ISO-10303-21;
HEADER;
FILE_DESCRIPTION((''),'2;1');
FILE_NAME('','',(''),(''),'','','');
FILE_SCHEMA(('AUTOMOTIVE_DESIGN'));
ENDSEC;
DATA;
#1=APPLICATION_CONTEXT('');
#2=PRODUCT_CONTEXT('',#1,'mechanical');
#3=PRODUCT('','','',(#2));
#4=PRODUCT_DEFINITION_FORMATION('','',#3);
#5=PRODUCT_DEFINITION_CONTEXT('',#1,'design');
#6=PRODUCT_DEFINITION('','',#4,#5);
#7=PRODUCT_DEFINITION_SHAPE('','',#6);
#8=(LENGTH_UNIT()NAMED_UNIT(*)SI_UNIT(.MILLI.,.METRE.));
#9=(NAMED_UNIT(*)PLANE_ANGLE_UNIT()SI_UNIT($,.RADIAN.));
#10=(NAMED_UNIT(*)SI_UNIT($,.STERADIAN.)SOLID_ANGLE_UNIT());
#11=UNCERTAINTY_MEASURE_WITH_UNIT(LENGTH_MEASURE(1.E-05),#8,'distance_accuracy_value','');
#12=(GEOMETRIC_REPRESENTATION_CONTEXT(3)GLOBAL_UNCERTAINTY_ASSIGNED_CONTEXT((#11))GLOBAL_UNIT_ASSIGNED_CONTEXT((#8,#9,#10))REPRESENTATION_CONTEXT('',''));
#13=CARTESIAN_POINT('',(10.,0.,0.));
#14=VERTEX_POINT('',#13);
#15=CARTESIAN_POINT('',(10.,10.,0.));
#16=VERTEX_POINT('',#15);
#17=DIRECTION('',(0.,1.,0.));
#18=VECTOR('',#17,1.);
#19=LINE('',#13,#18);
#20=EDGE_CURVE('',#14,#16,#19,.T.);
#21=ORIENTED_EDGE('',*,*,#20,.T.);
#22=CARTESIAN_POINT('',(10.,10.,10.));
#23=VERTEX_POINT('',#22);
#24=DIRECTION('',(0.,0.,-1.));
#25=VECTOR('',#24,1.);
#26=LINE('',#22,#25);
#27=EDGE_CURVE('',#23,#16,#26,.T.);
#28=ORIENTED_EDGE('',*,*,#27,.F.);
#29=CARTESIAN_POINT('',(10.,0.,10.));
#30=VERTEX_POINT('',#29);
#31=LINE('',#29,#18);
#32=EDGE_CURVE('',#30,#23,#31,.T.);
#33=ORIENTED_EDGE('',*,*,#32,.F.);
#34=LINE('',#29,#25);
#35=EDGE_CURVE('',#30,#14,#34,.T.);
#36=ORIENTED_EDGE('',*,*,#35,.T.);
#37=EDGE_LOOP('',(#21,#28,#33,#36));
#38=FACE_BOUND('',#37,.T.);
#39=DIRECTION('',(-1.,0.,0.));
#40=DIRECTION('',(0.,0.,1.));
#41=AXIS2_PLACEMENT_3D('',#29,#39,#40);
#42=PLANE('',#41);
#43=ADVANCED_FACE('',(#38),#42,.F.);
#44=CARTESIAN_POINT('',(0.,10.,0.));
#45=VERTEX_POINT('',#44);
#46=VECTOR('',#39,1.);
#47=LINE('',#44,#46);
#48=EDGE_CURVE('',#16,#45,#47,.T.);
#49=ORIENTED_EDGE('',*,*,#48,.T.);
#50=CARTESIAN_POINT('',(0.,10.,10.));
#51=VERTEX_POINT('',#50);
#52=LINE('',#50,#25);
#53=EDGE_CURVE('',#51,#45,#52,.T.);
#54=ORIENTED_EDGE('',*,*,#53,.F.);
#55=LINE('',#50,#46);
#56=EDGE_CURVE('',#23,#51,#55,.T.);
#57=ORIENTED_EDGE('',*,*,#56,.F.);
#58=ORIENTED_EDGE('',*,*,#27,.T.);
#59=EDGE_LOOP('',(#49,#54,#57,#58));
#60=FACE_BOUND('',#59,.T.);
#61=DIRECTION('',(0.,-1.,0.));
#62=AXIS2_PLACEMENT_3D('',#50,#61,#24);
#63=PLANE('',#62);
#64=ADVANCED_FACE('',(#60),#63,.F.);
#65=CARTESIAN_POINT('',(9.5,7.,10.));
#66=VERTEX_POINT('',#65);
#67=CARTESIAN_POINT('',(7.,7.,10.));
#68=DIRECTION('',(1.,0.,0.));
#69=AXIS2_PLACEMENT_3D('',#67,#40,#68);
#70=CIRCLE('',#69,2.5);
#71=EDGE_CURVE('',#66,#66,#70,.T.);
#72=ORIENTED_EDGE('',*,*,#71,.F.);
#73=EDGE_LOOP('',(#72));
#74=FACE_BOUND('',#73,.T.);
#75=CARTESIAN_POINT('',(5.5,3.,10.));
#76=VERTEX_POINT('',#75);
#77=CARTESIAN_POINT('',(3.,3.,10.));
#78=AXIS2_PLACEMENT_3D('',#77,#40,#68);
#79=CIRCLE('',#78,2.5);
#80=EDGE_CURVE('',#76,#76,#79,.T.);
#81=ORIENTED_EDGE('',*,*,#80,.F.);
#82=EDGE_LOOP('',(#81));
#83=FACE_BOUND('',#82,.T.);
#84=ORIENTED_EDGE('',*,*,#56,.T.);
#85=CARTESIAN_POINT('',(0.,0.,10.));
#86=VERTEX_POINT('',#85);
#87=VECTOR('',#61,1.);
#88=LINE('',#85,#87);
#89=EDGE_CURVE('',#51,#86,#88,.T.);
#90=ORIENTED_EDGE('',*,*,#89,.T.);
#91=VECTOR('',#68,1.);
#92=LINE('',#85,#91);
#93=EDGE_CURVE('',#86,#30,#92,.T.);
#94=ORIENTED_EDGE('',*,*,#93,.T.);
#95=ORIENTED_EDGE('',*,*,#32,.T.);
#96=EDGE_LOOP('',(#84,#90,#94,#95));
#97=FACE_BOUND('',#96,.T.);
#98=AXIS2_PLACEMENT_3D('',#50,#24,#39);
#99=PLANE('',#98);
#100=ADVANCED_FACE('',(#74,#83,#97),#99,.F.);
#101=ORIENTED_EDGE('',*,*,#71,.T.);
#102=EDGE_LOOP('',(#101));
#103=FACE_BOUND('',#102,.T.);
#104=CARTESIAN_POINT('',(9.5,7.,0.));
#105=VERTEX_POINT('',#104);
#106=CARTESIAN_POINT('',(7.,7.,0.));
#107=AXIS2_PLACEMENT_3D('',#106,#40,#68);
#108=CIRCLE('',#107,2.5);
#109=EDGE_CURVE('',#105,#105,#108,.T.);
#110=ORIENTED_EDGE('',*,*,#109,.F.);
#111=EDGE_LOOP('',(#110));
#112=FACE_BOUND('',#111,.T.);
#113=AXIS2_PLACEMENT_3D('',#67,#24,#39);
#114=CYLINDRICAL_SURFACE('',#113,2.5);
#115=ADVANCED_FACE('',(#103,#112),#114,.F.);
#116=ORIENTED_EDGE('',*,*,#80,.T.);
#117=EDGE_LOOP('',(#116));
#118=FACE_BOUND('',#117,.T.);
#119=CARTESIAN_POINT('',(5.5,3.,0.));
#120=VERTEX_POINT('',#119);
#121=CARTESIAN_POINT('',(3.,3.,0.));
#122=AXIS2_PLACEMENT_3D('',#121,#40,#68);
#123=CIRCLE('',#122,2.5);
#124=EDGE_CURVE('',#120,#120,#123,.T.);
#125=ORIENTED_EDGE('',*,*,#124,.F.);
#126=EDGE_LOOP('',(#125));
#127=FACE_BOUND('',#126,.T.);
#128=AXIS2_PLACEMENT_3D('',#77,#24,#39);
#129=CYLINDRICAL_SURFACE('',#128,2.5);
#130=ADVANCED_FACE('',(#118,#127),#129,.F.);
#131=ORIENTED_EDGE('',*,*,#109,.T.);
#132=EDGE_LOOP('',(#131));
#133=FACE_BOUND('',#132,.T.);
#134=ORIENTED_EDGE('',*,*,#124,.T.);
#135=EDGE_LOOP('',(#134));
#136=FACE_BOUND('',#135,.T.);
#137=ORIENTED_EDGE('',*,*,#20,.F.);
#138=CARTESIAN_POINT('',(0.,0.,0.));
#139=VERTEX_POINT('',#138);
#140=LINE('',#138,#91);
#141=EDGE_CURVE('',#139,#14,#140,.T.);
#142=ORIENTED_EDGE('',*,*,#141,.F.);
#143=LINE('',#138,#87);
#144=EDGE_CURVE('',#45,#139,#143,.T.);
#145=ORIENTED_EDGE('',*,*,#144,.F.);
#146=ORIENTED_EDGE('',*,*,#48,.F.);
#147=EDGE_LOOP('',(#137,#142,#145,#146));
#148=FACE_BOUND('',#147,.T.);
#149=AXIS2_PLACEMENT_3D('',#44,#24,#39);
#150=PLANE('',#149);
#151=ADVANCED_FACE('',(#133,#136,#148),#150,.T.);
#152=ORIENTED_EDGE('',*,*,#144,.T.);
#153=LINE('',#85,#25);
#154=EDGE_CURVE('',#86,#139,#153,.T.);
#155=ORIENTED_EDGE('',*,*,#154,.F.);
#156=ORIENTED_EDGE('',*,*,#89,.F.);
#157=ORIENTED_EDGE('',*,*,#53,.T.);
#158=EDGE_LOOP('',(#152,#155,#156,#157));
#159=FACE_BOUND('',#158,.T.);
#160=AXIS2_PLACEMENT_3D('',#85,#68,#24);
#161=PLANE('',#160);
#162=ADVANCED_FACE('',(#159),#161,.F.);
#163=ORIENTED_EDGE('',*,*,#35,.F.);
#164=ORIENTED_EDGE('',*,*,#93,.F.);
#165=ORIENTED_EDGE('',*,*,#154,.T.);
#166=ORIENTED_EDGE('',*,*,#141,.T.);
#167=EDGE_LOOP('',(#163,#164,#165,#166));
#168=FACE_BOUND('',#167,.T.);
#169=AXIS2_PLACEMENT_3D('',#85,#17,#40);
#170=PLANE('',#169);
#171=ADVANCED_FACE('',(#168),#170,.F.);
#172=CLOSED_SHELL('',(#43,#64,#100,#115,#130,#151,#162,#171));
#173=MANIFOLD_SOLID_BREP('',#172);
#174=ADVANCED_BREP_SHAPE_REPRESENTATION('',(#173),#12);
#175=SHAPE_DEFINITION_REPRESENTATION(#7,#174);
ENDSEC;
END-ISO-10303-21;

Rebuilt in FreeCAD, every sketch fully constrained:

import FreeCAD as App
import Part
import Sketcher
from FreeCAD import Vector


def add_polygon(sketch, points):
    """Adds a closed chain of lines whose ends are joined by coincident constraints."""
    first, n = sketch.GeometryCount, len(points)
    for a, b in zip(points, points[1:] + points[:1]):
        sketch.addGeometry(Part.LineSegment(App.Vector(*a, 0), App.Vector(*b, 0)), False)
    for i in range(n):
        sketch.addConstraint(Sketcher.Constraint("Coincident", first + i, 2, first + (i + 1) % n, 1))

doc = App.newDocument("Part")
body = doc.addObject("PartDesign::Body", "Body")

# Sketch on XY plane
sketch1 = doc.addObject("Sketcher::SketchObject", "Sketch")
body.addObject(sketch1)
sketch1.AttachmentSupport = (doc.XY_Plane, [""])
sketch1.MapMode = "FlatFace"
add_polygon(sketch1, [(0, 10), (0, 0), (10, 0), (10, 10)])  # lines 0-3
sketch1.addConstraint(Sketcher.Constraint("Vertical", 0))
sketch1.addConstraint(Sketcher.Constraint("Horizontal", 1))
sketch1.addConstraint(Sketcher.Constraint("Vertical", 2))
sketch1.addConstraint(Sketcher.Constraint("Horizontal", 3))
sketch1.addConstraint(Sketcher.Constraint("Coincident", 0, 2, -1, 1))
sketch1.addConstraint(Sketcher.Constraint("Equal", 3, 0))
sketch1.addConstraint(Sketcher.Constraint("DistanceX", 1, 1, 1, 2, 10.0))
pad1 = doc.addObject("PartDesign::Pad", "Pad")
body.addObject(pad1)
pad1.Profile = sketch1
pad1.Length = 10

# Sketch on XY plane
sketch2 = doc.addObject("Sketcher::SketchObject", "Sketch001")
body.addObject(sketch2)
sketch2.AttachmentSupport = (doc.XY_Plane, [""])
sketch2.MapMode = "FlatFace"
sketch2.addGeometry(Part.Circle(Vector(3, 3, 0), Vector(0, 0, 1), 2.5), False)
sketch2.addGeometry(Part.Circle(Vector(7, 7, 0), Vector(0, 0, 1), 2.5), False)
sketch2.addConstraint(Sketcher.Constraint("Equal", 0, 1))
sketch2.addConstraint(Sketcher.Constraint("Diameter", 0, 5.0))
sketch2.addConstraint(Sketcher.Constraint("DistanceX", -1, 1, 0, 3, 3.0))
sketch2.addConstraint(Sketcher.Constraint("DistanceY", -1, 1, 0, 3, 3.0))
sketch2.addConstraint(Sketcher.Constraint("DistanceX", -1, 1, 1, 3, 7.0))
sketch2.addConstraint(Sketcher.Constraint("DistanceY", -1, 1, 1, 3, 7.0))
pocket1 = doc.addObject("PartDesign::Pocket", "Pocket")
body.addObject(pocket1)
pocket1.Profile = sketch2
pocket1.Type = "ThroughAll"
pocket1.Reversed = True

doc.recompute()
